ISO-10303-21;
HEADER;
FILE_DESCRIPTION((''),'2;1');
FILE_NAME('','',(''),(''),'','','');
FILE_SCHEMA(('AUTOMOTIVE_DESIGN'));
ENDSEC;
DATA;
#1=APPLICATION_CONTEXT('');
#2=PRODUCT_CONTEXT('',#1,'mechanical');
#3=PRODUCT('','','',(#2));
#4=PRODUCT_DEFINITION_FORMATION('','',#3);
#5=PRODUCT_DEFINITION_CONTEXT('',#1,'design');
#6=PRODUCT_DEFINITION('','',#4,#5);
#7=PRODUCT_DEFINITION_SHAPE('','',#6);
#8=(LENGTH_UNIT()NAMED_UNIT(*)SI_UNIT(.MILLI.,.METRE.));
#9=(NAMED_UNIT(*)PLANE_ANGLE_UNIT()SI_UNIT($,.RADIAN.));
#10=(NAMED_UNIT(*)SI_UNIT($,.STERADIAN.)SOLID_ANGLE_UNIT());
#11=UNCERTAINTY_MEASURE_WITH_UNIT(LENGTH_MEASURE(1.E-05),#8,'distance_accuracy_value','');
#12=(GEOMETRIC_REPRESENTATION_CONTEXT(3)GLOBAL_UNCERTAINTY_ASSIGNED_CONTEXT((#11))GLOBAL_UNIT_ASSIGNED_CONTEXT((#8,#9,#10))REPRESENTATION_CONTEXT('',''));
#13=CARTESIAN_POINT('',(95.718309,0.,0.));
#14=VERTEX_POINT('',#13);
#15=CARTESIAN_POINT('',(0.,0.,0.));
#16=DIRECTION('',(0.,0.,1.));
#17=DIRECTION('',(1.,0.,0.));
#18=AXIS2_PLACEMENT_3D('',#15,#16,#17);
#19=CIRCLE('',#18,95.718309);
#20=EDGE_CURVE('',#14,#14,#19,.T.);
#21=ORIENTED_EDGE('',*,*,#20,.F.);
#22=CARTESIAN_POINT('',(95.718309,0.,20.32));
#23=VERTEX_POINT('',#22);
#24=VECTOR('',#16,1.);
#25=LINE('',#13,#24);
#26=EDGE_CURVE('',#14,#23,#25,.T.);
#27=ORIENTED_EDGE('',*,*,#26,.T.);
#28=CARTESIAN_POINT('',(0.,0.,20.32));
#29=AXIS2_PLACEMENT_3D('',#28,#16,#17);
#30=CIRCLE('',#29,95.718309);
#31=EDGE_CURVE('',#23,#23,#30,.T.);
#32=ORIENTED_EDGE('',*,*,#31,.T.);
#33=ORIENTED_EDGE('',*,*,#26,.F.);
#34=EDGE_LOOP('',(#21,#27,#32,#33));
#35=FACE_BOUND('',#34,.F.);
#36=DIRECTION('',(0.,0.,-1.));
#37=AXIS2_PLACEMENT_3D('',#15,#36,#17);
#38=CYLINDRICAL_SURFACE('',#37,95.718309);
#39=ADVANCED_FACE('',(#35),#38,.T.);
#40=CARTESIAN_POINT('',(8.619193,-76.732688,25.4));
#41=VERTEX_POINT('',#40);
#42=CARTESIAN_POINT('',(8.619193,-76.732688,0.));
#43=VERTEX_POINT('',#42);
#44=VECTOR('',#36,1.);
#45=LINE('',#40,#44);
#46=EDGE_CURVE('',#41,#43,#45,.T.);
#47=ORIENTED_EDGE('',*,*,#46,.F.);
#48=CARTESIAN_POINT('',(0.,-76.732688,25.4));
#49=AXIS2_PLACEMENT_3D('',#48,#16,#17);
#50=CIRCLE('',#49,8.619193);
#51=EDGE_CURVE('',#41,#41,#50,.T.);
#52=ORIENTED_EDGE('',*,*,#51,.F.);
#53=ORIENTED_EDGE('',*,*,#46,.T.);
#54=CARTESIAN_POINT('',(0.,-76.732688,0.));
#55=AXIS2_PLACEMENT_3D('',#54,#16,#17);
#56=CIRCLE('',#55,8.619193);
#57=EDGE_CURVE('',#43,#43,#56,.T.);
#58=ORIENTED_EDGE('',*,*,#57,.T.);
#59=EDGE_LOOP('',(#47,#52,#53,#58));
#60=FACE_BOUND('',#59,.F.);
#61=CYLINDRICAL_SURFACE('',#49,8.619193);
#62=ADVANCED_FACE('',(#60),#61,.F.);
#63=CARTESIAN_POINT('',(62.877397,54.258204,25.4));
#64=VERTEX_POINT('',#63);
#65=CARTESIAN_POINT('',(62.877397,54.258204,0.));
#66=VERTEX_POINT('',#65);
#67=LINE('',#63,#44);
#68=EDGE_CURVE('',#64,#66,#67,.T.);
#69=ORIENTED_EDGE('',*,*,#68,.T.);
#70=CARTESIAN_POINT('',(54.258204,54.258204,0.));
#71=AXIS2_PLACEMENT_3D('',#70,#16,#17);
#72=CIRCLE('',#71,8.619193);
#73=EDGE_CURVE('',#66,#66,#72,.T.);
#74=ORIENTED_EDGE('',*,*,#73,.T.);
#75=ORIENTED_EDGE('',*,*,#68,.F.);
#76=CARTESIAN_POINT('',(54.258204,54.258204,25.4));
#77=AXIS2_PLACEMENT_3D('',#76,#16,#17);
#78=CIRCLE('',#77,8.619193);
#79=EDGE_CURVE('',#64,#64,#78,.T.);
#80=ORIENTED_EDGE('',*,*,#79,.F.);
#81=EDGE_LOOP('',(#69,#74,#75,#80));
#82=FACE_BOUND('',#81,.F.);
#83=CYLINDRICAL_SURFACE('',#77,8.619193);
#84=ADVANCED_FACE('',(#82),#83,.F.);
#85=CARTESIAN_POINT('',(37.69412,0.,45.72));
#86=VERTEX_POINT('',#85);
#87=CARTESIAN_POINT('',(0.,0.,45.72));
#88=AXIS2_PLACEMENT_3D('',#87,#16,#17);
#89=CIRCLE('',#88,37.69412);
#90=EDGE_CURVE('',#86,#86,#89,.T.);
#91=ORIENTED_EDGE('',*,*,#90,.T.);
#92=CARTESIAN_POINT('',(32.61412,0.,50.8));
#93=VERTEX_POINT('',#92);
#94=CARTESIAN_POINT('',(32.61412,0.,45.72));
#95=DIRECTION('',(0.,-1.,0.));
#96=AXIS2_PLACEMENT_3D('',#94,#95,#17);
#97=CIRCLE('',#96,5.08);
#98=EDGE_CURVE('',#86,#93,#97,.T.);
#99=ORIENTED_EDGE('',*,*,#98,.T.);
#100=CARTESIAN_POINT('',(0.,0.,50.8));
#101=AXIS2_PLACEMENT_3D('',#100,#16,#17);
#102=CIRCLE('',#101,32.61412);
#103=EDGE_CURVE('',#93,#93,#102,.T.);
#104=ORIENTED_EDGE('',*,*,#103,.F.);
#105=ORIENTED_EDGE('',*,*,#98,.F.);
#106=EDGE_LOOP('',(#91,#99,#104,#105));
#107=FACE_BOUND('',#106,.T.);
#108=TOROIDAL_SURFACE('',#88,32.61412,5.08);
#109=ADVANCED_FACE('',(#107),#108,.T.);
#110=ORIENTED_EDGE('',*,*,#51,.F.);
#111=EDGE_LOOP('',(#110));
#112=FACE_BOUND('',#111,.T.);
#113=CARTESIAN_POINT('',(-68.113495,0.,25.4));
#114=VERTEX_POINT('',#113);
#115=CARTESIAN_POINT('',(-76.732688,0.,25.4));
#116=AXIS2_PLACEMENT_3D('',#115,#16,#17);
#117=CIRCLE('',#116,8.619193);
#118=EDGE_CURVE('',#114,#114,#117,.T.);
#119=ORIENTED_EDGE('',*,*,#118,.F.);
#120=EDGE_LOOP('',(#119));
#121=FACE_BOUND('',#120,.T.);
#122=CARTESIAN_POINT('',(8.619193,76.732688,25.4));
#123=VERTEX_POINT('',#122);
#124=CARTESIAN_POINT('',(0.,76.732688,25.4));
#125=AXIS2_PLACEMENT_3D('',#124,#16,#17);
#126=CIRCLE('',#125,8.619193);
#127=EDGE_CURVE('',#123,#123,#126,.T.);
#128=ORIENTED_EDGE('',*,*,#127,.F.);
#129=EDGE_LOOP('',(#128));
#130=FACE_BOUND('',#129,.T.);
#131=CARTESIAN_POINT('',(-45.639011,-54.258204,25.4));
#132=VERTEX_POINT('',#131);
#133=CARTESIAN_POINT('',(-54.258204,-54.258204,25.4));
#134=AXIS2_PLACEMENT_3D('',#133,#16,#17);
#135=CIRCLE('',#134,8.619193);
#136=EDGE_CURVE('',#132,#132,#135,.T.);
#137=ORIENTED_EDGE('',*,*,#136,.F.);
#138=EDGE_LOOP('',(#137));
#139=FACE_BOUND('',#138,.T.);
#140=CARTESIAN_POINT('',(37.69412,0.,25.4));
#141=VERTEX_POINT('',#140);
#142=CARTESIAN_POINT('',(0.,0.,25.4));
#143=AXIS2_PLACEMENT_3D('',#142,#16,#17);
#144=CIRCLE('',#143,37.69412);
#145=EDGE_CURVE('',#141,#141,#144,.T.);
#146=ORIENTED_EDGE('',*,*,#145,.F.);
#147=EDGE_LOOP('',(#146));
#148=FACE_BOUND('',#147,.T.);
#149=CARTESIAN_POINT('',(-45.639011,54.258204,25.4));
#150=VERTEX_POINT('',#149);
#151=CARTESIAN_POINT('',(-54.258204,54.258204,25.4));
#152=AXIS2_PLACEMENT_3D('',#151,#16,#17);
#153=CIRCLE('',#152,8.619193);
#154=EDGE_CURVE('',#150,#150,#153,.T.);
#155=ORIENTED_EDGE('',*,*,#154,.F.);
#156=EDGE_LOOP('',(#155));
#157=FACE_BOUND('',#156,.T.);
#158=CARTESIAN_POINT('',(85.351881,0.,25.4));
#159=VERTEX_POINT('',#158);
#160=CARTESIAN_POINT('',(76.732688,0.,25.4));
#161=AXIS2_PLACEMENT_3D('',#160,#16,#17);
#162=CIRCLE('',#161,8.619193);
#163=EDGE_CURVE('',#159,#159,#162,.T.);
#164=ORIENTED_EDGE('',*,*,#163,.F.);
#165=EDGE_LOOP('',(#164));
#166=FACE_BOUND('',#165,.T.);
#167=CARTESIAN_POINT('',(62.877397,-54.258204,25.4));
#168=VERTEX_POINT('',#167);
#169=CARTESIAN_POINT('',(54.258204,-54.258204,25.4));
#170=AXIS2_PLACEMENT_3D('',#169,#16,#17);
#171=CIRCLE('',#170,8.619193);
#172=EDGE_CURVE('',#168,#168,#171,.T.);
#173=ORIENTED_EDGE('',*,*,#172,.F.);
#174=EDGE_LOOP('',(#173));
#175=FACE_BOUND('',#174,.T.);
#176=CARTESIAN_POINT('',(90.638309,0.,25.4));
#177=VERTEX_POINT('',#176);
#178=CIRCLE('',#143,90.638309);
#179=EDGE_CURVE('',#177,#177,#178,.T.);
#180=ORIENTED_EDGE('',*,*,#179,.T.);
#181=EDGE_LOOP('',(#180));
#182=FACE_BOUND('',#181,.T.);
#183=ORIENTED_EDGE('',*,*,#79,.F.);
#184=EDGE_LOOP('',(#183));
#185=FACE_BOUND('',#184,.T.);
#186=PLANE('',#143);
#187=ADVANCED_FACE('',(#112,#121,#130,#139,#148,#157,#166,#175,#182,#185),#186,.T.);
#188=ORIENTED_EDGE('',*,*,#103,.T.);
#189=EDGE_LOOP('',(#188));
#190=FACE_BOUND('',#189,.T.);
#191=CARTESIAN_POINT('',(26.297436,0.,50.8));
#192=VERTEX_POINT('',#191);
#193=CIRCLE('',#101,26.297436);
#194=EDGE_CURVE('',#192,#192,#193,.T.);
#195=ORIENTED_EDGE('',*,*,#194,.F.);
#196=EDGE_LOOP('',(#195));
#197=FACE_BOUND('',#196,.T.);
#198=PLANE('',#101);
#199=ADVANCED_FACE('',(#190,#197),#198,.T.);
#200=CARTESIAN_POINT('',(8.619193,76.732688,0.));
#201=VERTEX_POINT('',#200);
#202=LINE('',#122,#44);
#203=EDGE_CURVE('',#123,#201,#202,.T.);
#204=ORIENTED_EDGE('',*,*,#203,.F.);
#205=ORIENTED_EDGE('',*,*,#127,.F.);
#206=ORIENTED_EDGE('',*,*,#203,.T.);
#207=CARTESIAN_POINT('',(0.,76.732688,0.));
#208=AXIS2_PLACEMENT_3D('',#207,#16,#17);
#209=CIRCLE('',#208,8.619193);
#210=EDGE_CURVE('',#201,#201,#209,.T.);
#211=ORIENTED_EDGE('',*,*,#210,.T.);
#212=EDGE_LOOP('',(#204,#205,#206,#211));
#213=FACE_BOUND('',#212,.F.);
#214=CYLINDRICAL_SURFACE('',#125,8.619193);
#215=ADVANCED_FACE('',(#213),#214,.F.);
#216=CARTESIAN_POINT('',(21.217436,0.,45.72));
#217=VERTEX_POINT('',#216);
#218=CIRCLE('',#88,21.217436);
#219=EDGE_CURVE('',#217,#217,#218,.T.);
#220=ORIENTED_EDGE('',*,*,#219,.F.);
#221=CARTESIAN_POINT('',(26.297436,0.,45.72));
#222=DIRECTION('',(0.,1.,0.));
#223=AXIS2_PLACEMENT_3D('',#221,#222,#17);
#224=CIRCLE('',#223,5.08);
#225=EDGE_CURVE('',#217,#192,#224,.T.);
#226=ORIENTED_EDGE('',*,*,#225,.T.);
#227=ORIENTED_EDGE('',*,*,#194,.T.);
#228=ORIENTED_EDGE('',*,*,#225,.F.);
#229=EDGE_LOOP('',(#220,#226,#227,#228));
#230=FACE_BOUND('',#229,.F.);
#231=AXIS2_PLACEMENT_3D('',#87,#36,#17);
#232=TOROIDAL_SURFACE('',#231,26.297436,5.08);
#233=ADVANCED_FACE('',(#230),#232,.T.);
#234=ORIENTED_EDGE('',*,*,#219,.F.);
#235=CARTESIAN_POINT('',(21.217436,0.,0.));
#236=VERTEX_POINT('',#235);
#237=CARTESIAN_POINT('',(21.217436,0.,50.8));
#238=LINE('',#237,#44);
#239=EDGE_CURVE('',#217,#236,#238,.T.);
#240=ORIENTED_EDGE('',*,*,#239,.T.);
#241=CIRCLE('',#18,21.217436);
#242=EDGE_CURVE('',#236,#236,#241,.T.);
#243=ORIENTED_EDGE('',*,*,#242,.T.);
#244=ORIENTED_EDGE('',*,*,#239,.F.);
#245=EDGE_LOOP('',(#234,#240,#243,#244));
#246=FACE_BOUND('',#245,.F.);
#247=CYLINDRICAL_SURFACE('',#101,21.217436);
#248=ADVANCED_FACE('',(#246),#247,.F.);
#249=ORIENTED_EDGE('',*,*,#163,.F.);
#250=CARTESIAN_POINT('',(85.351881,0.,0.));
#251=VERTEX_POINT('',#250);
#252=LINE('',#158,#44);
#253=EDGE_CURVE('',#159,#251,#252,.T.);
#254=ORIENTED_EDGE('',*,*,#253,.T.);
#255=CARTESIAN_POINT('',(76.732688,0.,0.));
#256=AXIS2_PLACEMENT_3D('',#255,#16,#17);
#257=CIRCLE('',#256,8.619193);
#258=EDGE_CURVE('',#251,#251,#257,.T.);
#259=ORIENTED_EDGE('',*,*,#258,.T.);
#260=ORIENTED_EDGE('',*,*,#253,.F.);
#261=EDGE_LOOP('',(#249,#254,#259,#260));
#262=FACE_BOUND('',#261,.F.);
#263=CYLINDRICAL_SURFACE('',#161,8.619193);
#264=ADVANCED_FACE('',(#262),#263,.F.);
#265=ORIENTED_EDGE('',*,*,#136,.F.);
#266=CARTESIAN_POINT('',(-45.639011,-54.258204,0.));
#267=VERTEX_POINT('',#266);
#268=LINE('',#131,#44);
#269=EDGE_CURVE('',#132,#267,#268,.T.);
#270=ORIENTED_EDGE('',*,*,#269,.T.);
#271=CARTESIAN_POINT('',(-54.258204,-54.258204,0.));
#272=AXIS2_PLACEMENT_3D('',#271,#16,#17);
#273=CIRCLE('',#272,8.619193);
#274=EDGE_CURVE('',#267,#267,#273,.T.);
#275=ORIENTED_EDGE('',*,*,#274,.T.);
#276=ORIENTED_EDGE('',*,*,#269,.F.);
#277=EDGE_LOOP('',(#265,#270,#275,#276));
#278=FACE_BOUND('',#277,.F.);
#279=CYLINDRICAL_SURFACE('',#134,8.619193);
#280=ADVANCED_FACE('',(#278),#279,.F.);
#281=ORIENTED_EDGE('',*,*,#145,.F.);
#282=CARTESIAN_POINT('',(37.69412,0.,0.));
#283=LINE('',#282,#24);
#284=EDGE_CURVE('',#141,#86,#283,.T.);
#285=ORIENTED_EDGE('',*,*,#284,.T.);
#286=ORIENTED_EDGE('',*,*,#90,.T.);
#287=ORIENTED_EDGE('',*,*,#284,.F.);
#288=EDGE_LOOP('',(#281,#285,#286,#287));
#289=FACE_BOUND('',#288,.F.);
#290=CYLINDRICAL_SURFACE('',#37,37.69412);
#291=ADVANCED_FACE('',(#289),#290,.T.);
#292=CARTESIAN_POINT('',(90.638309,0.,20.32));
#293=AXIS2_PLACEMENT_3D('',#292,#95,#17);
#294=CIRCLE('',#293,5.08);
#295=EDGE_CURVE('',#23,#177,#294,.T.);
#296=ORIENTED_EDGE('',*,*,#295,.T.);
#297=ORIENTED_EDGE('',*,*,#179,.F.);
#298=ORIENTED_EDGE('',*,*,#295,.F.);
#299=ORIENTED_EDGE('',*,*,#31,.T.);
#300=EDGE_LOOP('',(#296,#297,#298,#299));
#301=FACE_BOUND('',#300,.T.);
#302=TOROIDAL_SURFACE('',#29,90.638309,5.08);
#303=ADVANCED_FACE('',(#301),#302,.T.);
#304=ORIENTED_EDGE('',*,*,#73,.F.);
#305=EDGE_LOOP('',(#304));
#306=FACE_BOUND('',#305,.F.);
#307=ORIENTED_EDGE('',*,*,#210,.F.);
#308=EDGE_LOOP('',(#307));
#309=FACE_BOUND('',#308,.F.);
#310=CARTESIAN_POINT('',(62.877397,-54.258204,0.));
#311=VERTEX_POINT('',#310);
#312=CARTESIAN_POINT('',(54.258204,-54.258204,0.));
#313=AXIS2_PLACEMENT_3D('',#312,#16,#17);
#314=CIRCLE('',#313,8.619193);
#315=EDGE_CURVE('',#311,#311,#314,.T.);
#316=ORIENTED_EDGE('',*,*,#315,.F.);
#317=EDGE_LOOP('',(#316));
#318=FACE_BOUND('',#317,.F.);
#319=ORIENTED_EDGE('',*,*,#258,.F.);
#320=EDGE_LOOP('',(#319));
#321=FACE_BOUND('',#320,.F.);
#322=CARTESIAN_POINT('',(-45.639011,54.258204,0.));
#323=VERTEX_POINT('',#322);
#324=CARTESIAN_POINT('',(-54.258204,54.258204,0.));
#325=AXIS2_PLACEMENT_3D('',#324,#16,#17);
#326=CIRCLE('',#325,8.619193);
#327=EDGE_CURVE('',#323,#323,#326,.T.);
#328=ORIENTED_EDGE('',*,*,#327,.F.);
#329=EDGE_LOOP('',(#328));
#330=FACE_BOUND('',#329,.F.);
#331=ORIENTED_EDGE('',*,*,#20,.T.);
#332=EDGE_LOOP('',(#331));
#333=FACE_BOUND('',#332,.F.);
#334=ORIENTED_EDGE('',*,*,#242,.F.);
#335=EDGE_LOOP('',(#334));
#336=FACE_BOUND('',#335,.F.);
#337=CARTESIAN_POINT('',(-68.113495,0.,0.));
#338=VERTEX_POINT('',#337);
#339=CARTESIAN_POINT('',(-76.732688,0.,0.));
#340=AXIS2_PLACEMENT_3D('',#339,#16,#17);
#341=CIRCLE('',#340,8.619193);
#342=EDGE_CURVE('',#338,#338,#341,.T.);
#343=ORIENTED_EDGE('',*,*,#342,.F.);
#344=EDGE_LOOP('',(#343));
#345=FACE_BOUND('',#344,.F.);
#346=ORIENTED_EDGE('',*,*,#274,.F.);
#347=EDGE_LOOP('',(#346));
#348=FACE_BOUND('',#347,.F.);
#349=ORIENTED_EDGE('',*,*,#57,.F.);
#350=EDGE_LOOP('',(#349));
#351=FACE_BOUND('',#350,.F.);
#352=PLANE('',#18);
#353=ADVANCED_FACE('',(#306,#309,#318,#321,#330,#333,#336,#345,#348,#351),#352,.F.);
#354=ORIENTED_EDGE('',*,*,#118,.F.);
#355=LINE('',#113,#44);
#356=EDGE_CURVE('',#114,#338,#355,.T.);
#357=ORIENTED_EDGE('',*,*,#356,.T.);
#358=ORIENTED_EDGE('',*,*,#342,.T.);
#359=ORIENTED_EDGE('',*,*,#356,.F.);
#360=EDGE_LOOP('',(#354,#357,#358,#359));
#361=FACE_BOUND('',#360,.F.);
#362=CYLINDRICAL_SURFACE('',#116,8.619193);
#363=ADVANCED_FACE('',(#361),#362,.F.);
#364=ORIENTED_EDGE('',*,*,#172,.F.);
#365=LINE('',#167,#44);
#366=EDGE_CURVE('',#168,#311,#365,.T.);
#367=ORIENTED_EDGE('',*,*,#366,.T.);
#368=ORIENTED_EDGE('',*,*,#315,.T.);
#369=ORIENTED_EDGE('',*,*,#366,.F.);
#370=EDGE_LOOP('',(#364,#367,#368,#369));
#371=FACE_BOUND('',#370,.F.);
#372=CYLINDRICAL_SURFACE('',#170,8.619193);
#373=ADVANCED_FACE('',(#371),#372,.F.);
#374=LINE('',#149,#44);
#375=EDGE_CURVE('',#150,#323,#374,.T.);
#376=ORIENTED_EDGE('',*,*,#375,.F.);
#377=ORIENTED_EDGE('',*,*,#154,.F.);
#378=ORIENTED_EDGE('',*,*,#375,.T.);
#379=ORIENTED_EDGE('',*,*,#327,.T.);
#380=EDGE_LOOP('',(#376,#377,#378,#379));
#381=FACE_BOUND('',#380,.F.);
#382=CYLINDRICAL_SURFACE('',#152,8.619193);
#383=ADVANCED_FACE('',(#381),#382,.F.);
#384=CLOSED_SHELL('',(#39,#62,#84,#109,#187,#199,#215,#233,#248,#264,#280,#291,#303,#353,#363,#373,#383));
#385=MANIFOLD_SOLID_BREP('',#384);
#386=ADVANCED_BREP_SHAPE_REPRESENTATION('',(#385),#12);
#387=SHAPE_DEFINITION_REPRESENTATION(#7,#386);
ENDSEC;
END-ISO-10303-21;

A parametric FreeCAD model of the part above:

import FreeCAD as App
import Part
import Sketcher

V = App.Vector
Q = App.Units.Quantity


def edges_at(feature, points):
    """Names of the edges that pass closest to the given points."""
    edges = feature.Shape.Edges
    near = lambda p: min(range(len(edges)), key=lambda i: edges[i].distToShape(Part.Vertex(*p))[0])
    return sorted({f"Edge{near(p) + 1}" for p in points})

doc = App.newDocument("Part")
body = doc.addObject("PartDesign::Body", "Body")

sketch1 = body.newObject("Sketcher::SketchObject", "Sketch")
sketch1.AttachmentSupport = (doc.getObject("XY_Plane"), [""])
sketch1.MapMode = "FlatFace"
sketch1.addGeometry(Part.Circle(V(0, 0, 0), V(0, 0, 1), 38), False)
sketch1.addConstraint(Sketcher.Constraint("Coincident", 0, 3, -1, 1))
sketch1.addConstraint(Sketcher.Constraint("Diameter", 0, 75.38824))
pad1 = body.newObject("PartDesign::Pad", "Pad")
pad1.Profile = sketch1
pad1.Length = Q("2 in")

sketch2 = body.newObject("Sketcher::SketchObject", "Sketch001")
sketch2.AttachmentSupport = (doc.getObject("XY_Plane"), [""])
sketch2.MapMode = "FlatFace"
sketch2.addGeometry(Part.Circle(V(0, 0, 0), V(0, 0, 1), 96), False)
sketch2.addGeometry(Part.Circle(V(0, 0, 0), V(0, 0, 1), 38), False)
sketch2.addConstraint(Sketcher.Constraint("Coincident", 0, 3, -1, 1))
sketch2.addConstraint(Sketcher.Constraint("Coincident", 1, 3, -1, 1))
sketch2.addConstraint(Sketcher.Constraint("Diameter", 0, 191.436618))
sketch2.addConstraint(Sketcher.Constraint("Diameter", 1, 75.38824))
pad2 = body.newObject("PartDesign::Pad", "Pad001")
pad2.Profile = sketch2
pad2.Length = Q("1 in")

sketch3 = body.newObject("Sketcher::SketchObject", "Sketch002")
sketch3.AttachmentSupport = (doc.getObject("XY_Plane"), [""])
sketch3.MapMode = "FlatFace"
sketch3.AttachmentOffset = App.Placement(V(0, 0, 1 * 25.4), App.Rotation())
sketch3.addGeometry(Part.Circle(V(0, 77, 0), V(0, 0, 1), 9), False)
sketch3.addGeometry(Part.Circle(V(-54, 54, 0), V(0, 0, 1), 9), False)
sketch3.addGeometry(Part.Circle(V(-77, 0, 0), V(0, 0, 1), 9), False)
sketch3.addGeometry(Part.Circle(V(-54, -54, 0), V(0, 0, 1), 9), False)
sketch3.addGeometry(Part.Circle(V(0, -77, 0), V(0, 0, 1), 9), False)
sketch3.addGeometry(Part.Circle(V(54, -54, 0), V(0, 0, 1), 9), False)
sketch3.addGeometry(Part.Circle(V(77, 0, 0), V(0, 0, 1), 9), False)
sketch3.addGeometry(Part.Circle(V(54, 54, 0), V(0, 0, 1), 9), False)
sketch3.addConstraint(Sketcher.Constraint("Equal", 0, 1))
sketch3.addConstraint(Sketcher.Constraint("Equal", 1, 2))
sketch3.addConstraint(Sketcher.Constraint("Equal", 2, 3))
sketch3.addConstraint(Sketcher.Constraint("Equal", 3, 4))
sketch3.addConstraint(Sketcher.Constraint("Equal", 4, 5))
sketch3.addConstraint(Sketcher.Constraint("Equal", 5, 6))
sketch3.addConstraint(Sketcher.Constraint("Equal", 6, 7))
sketch3.addConstraint(Sketcher.Constraint("Symmetric", 0, 3, 4, 3, -1, 1))
sketch3.addConstraint(Sketcher.Constraint("Symmetric", 1, 3, 5, 3, -1, 1))
sketch3.addConstraint(Sketcher.Constraint("Symmetric", 2, 3, 6, 3, -1, 1))
sketch3.addConstraint(Sketcher.Constraint("Symmetric", 3, 3, 7, 3, -1, 1))
sketch3.addConstraint(Sketcher.Constraint("Symmetric", 3, 3, 5, 3, -2))
sketch3.addConstraint(Sketcher.Constraint("PointOnObject", 0, 3, -2))
sketch3.addConstraint(Sketcher.Constraint("PointOnObject", 2, 3, -1))
sketch3.addConstraint(Sketcher.Constraint("Diameter", 0, 17.238386))
sketch3.addConstraint(Sketcher.Constraint("DistanceY", 3, 3, 1, 3, 108.516408))
sketch3.addConstraint(Sketcher.Constraint("DistanceY", 3, 3, 0, 3, 130.990892))
sketch3.addConstraint(Sketcher.Constraint("DistanceX", 3, 3, 5, 3, 108.516408))
sketch3.addConstraint(Sketcher.Constraint("DistanceX", 2, 3, 5, 3, 130.990892))
pocket1 = body.newObject("PartDesign::Pocket", "Pocket")
pocket1.Profile = sketch3
pocket1.Type = "ThroughAll"

sketch4 = body.newObject("Sketcher::SketchObject", "Sketch003")
sketch4.AttachmentSupport = (doc.getObject("XY_Plane"), [""])
sketch4.MapMode = "FlatFace"
sketch4.AttachmentOffset = App.Placement(V(0, 0, 2 * 25.4), App.Rotation())
sketch4.addGeometry(Part.Circle(V(0, 0, 0), V(0, 0, 1), 21), False)
sketch4.addConstraint(Sketcher.Constraint("Coincident", 0, 3, -1, 1))
sketch4.addConstraint(Sketcher.Constraint("Diameter", 0, 42.434872))
pocket2 = body.newObject("PartDesign::Pocket", "Pocket001")
pocket2.Profile = sketch4
pocket2.Type = "ThroughAll"
doc.recompute()

fillet = body.newObject("PartDesign::Fillet", "Fillet")
fillet.Base = (pocket2, edges_at(pocket2, [(-95.718, 0, 25.4), (-37.694, 0, 50.8), (-21.217, 0, 50.8)]))
fillet.Radius = Q("0.2 in")

doc.recompute()
